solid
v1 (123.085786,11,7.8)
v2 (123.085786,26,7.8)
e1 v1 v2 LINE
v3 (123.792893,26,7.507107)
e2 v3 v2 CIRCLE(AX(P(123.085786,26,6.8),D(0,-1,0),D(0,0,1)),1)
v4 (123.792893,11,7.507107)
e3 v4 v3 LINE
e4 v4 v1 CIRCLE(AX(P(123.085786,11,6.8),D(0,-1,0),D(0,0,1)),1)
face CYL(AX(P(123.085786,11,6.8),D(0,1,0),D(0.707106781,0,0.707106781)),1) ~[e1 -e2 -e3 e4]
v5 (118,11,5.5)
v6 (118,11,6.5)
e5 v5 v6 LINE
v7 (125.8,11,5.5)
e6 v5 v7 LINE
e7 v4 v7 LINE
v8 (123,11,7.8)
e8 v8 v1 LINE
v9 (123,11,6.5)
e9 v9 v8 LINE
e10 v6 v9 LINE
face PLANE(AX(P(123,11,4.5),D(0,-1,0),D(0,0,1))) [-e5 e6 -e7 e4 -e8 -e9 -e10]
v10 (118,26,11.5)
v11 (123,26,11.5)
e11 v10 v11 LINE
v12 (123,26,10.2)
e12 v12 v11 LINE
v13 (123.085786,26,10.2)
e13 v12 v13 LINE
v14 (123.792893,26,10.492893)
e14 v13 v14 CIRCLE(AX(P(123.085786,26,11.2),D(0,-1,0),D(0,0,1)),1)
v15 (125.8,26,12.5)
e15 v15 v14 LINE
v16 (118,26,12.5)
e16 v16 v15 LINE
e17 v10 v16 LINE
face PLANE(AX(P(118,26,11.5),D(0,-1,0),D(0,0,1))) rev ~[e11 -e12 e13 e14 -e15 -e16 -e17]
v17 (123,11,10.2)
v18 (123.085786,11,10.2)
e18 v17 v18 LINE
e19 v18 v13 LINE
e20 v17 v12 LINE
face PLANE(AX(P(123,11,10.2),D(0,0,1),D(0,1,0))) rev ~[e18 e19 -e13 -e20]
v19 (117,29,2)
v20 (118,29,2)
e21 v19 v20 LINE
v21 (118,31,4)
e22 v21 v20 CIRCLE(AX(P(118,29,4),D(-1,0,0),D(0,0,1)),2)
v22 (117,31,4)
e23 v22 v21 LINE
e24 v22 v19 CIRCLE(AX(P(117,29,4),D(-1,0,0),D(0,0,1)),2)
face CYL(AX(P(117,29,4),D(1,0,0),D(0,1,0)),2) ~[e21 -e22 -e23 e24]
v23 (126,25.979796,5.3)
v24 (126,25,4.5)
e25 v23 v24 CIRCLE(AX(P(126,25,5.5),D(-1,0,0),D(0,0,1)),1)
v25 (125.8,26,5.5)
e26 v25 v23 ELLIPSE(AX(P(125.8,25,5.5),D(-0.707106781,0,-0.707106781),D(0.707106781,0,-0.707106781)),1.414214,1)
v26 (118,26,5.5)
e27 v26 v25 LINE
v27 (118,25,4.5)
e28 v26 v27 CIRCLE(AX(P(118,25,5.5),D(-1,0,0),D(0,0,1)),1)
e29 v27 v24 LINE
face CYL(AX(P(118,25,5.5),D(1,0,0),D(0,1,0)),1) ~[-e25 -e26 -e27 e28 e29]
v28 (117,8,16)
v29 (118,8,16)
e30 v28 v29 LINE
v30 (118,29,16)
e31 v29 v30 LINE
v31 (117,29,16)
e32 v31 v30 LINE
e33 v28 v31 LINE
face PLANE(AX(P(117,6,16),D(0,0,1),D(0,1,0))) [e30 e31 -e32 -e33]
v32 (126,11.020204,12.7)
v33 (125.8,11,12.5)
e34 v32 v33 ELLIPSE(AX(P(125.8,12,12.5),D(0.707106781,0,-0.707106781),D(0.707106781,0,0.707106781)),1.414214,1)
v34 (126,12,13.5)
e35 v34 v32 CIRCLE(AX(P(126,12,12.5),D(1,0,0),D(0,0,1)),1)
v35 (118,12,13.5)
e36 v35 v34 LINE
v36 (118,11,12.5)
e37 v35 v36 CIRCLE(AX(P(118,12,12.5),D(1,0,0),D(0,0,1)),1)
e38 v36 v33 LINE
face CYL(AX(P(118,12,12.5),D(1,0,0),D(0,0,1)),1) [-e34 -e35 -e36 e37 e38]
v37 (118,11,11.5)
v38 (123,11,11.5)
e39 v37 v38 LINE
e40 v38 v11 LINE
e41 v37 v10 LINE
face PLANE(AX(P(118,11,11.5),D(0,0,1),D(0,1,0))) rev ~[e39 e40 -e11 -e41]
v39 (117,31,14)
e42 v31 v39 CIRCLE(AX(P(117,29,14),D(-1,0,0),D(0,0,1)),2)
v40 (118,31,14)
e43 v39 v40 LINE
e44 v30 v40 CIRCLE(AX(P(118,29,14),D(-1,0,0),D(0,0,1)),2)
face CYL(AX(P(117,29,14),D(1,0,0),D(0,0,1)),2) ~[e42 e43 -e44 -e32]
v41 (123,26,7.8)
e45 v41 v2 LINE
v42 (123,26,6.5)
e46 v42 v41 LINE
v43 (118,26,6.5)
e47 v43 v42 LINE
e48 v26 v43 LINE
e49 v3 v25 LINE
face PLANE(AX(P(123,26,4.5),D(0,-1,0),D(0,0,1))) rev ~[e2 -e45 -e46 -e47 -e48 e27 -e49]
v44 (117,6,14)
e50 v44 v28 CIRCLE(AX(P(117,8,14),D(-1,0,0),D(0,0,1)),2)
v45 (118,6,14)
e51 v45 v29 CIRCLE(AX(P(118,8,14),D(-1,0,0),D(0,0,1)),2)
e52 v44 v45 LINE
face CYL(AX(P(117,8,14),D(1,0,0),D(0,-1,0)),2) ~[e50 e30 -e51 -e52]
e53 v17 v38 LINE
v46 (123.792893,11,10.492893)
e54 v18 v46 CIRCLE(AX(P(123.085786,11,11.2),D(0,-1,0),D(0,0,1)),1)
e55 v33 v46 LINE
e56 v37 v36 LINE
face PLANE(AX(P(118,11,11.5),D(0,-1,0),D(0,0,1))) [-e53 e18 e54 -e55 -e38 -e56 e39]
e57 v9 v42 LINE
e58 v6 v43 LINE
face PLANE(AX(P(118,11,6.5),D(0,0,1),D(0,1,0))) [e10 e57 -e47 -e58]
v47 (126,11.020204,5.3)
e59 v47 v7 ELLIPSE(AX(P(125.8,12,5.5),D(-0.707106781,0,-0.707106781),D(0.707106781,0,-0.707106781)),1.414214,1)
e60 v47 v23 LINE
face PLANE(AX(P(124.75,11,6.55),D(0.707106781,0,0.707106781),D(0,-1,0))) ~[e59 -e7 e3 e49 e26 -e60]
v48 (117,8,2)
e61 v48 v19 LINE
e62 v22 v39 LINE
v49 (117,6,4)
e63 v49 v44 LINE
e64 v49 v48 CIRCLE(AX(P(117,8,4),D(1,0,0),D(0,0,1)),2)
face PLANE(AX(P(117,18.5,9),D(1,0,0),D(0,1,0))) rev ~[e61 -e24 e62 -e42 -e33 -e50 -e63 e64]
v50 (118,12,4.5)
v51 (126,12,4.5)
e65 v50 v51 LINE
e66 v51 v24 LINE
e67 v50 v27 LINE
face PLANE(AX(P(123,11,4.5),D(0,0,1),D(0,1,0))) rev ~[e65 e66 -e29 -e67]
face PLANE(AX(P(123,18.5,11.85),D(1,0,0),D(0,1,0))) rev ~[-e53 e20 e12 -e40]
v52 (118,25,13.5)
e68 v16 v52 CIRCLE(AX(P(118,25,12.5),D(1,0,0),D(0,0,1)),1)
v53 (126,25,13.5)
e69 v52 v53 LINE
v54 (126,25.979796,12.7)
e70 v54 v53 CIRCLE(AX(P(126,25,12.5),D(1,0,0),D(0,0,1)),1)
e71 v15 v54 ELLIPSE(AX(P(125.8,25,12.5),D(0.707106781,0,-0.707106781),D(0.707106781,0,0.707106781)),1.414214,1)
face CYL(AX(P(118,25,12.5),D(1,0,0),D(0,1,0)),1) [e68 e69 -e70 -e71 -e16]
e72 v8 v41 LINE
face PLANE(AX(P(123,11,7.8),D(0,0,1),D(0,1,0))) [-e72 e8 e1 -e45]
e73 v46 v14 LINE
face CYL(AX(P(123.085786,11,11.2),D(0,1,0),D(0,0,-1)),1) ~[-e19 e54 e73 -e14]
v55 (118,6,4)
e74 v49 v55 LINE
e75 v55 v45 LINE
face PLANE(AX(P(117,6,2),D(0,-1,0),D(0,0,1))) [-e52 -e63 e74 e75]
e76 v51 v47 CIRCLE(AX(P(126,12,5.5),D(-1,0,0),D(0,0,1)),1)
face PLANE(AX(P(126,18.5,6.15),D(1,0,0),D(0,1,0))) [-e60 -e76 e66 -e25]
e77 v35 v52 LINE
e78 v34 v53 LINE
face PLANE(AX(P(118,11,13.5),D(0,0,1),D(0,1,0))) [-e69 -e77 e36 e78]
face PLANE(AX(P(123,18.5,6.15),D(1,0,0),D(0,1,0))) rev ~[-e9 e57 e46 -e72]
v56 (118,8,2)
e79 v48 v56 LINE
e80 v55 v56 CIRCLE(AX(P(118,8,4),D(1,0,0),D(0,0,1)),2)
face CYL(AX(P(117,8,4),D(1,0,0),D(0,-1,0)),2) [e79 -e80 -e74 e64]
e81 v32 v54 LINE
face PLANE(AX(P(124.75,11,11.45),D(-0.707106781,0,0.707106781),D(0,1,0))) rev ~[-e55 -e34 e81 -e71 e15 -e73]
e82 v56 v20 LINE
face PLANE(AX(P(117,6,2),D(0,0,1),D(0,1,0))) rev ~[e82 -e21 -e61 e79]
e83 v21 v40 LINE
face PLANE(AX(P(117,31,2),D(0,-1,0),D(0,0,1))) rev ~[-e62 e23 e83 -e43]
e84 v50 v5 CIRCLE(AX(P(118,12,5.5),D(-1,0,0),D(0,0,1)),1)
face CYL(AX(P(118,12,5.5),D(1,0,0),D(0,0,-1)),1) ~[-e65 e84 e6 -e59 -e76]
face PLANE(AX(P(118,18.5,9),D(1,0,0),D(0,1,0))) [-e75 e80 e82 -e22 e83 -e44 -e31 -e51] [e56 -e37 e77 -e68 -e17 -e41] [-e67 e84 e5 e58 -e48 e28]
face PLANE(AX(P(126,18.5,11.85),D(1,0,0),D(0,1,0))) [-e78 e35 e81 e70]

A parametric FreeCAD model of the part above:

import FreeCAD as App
import Part
import Sketcher
from FreeCAD import Vector
Q = App.Units.Quantity


def edges_at(feature, points):
    """Names of the edges that pass closest to the given points."""
    edges = feature.Shape.Edges
    near = lambda p: min(range(len(edges)), key=lambda i: edges[i].distToShape(Part.Vertex(*p))[0])
    return sorted({f"Edge{near(p) + 1}" for p in points})

doc = App.newDocument("Part")
body = doc.addObject("PartDesign::Body", "Body")

# Sketch on YZ plane
sketch1 = body.newObject("Sketcher::SketchObject", "Sketch")
sketch1.AttachmentSupport = (doc.getObject("YZ_Plane"), [""])
sketch1.MapMode = "FlatFace"
sketch1.addGeometry(Part.LineSegment(Vector(-25, 16, 0), Vector(-25, 2, 0)), False)
sketch1.addGeometry(Part.LineSegment(Vector(-25, 2, 0), Vector(0, 2, 0)), False)
sketch1.addGeometry(Part.LineSegment(Vector(0, 2, 0), Vector(0, 16, 0)), False)
sketch1.addGeometry(Part.LineSegment(Vector(0, 16, 0), Vector(-25, 16, 0)), False)
sketch1.addConstraint(Sketcher.Constraint("Coincident", 0, 2, 1, 1))
sketch1.addConstraint(Sketcher.Constraint("Coincident", 1, 2, 2, 1))
sketch1.addConstraint(Sketcher.Constraint("Coincident", 2, 2, 3, 1))
sketch1.addConstraint(Sketcher.Constraint("Coincident", 3, 2, 0, 1))
sketch1.addConstraint(Sketcher.Constraint("Vertical", 0))
sketch1.addConstraint(Sketcher.Constraint("Horizontal", 1))
sketch1.addConstraint(Sketcher.Constraint("Vertical", 2))
sketch1.addConstraint(Sketcher.Constraint("Horizontal", 3))
sketch1.addConstraint(Sketcher.Constraint("PointOnObject", 1, 2, -2))
sketch1.addConstraint(Sketcher.Constraint("DistanceX", 1, 1, 1, 2, Q("25 mm")))
sketch1.addConstraint(Sketcher.Constraint("DistanceY", 0, 2, 0, 1, Q("14 mm")))
sketch1.addConstraint(Sketcher.Constraint("DistanceY", -1, 1, 0, 2, Q("2 mm")))
pad1 = body.newObject("PartDesign::Pad", "Pad")
pad1.Profile = sketch1
pad1.Length = 1
doc.recompute()

fillet = body.newObject("PartDesign::Fillet", "Fillet")
fillet.Base = (pad1, edges_at(pad1, [(0.5, -25, 2)]))
fillet.Radius = 2
doc.recompute()

fillet2 = body.newObject("PartDesign::Fillet", "Fillet001")
fillet2.Base = (fillet, edges_at(fillet, [(0.5, -25, 16)]))
fillet2.Radius = 2
doc.recompute()

fillet3 = body.newObject("PartDesign::Fillet", "Fillet002")
fillet3.Base = (fillet2, edges_at(fillet2, [(0.5, 0, 16)]))
fillet3.Radius = 2
doc.recompute()

fillet4 = body.newObject("PartDesign::Fillet", "Fillet003")
fillet4.Base = (fillet3, edges_at(fillet3, [(0.5, 0, 2)]))
fillet4.Radius = 2

# Sketch on YZ plane
sketch2 = body.newObject("Sketcher::SketchObject", "Sketch001")
sketch2.AttachmentSupport = (doc.getObject("YZ_Plane"), [""])
sketch2.MapMode = "FlatFace"
sketch2.AttachmentOffset = App.Placement(Vector(0, 0, 1), App.Rotation())
sketch2.addGeometry(Part.LineSegment(Vector(-20, 13.5, 0), Vector(-20, 11.5, 0)), False)
sketch2.addGeometry(Part.LineSegment(Vector(-20, 11.5, 0), Vector(-5, 11.5, 0)), False)
sketch2.addGeometry(Part.LineSegment(Vector(-5, 11.5, 0), Vector(-5, 13.5, 0)), False)
sketch2.addGeometry(Part.LineSegment(Vector(-5, 13.5, 0), Vector(-20, 13.5, 0)), False)
sketch2.addGeometry(Part.LineSegment(Vector(-20, 6.5, 0), Vector(-20, 4.5, 0)), False)
sketch2.addGeometry(Part.LineSegment(Vector(-20, 4.5, 0), Vector(-5, 4.5, 0)), False)
sketch2.addGeometry(Part.LineSegment(Vector(-5, 4.5, 0), Vector(-5, 6.5, 0)), False)
sketch2.addGeometry(Part.LineSegment(Vector(-5, 6.5, 0), Vector(-20, 6.5, 0)), False)
sketch2.addConstraint(Sketcher.Constraint("Coincident", 0, 2, 1, 1))
sketch2.addConstraint(Sketcher.Constraint("Coincident", 1, 2, 2, 1))
sketch2.addConstraint(Sketcher.Constraint("Coincident", 2, 2, 3, 1))
sketch2.addConstraint(Sketcher.Constraint("Coincident", 3, 2, 0, 1))
sketch2.addConstraint(Sketcher.Constraint("Coincident", 4, 2, 5, 1))
sketch2.addConstraint(Sketcher.Constraint("Coincident", 5, 2, 6, 1))
sketch2.addConstraint(Sketcher.Constraint("Coincident", 6, 2, 7, 1))
sketch2.addConstraint(Sketcher.Constraint("Coincident", 7, 2, 4, 1))
sketch2.addConstraint(Sketcher.Constraint("Vertical", 0))
sketch2.addConstraint(Sketcher.Constraint("Horizontal", 1))
sketch2.addConstraint(Sketcher.Constraint("Vertical", 2))
sketch2.addConstraint(Sketcher.Constraint("Horizontal", 3))
sketch2.addConstraint(Sketcher.Constraint("Vertical", 4))
sketch2.addConstraint(Sketcher.Constraint("Horizontal", 5))
sketch2.addConstraint(Sketcher.Constraint("Vertical", 6))
sketch2.addConstraint(Sketcher.Constraint("Horizontal", 7))
sketch2.addConstraint(Sketcher.Constraint("Vertical", 3, 2, 4, 2))
sketch2.addConstraint(Sketcher.Constraint("Vertical", 2, 2, 5, 2))
sketch2.addConstraint(Sketcher.Constraint("Equal", 2, 4))
sketch2.addConstraint(Sketcher.Constraint("DistanceX", 1, 1, 1, 2, Q("15 mm")))
sketch2.addConstraint(Sketcher.Constraint("DistanceY", 0, 2, 0, 1, Q("2 mm")))
sketch2.addConstraint(Sketcher.Constraint("DistanceX", 0, 2, -1, 1, Q("20 mm")))
sketch2.addConstraint(Sketcher.Constraint("DistanceY", 4, 2, 0, 2, Q("7 mm")))
sketch2.addConstraint(Sketcher.Constraint("DistanceY", -1, 1, 0, 2, Q("11.5 mm")))
pad2 = body.newObject("PartDesign::Pad", "Pad001")
pad2.Profile = sketch2
pad2.Length = 5

# Sketch on YZ plane
sketch3 = body.newObject("Sketcher::SketchObject", "Sketch002")
sketch3.AttachmentSupport = (doc.getObject("YZ_Plane"), [""])
sketch3.MapMode = "FlatFace"
sketch3.AttachmentOffset = App.Placement(Vector(0, 0, 6), App.Rotation())
sketch3.addGeometry(Part.LineSegment(Vector(-20, 7.8, 0), Vector(-20, 4.5, 0)), False)
sketch3.addGeometry(Part.LineSegment(Vector(-20, 4.5, 0), Vector(-5, 4.5, 0)), False)
sketch3.addGeometry(Part.LineSegment(Vector(-5, 4.5, 0), Vector(-5, 7.8, 0)), False)
sketch3.addGeometry(Part.LineSegment(Vector(-5, 7.8, 0), Vector(-20, 7.8, 0)), False)
sketch3.addGeometry(Part.LineSegment(Vector(-20, 13.5, 0), Vector(-20, 10.2, 0)), False)
sketch3.addGeometry(Part.LineSegment(Vector(-20, 10.2, 0), Vector(-5, 10.2, 0)), False)
sketch3.addGeometry(Part.LineSegment(Vector(-5, 10.2, 0), Vector(-5, 13.5, 0)), False)
sketch3.addGeometry(Part.LineSegment(Vector(-5, 13.5, 0), Vector(-20, 13.5, 0)), False)
sketch3.addConstraint(Sketcher.Constraint("Coincident", 0, 2, 1, 1))
sketch3.addConstraint(Sketcher.Constraint("Coincident", 1, 2, 2, 1))
sketch3.addConstraint(Sketcher.Constraint("Coincident", 2, 2, 3, 1))
sketch3.addConstraint(Sketcher.Constraint("Coincident", 3, 2, 0, 1))
sketch3.addConstraint(Sketcher.Constraint("Coincident", 4, 2, 5, 1))
sketch3.addConstraint(Sketcher.Constraint("Coincident", 5, 2, 6, 1))
sketch3.addConstraint(Sketcher.Constraint("Coincident", 6, 2, 7, 1))
sketch3.addConstraint(Sketcher.Constraint("Coincident", 7, 2, 4, 1))
sketch3.addConstraint(Sketcher.Constraint("Vertical", 0))
sketch3.addConstraint(Sketcher.Constraint("Horizontal", 1))
sketch3.addConstraint(Sketcher.Constraint("Vertical", 2))
sketch3.addConstraint(Sketcher.Constraint("Horizontal", 3))
sketch3.addConstraint(Sketcher.Constraint("Vertical", 4))
sketch3.addConstraint(Sketcher.Constraint("Horizontal", 5))
sketch3.addConstraint(Sketcher.Constraint("Vertical", 6))
sketch3.addConstraint(Sketcher.Constraint("Horizontal", 7))
sketch3.addConstraint(Sketcher.Constraint("Vertical", 3, 2, 4, 2))
sketch3.addConstraint(Sketcher.Constraint("Vertical", 2, 2, 5, 2))
sketch3.addConstraint(Sketcher.Constraint("Equal", 2, 4))
sketch3.addConstraint(Sketcher.Constraint("DistanceX", 1, 1, 1, 2, Q("15 mm")))
sketch3.addConstraint(Sketcher.Constraint("DistanceY", 0, 2, 0, 1, Q("3.3 mm")))
sketch3.addConstraint(Sketcher.Constraint("DistanceX", 0, 2, -1, 1, Q("20 mm")))
sketch3.addConstraint(Sketcher.Constraint("DistanceY", 1, 2, 6, 2, Q("9 mm")))
sketch3.addConstraint(Sketcher.Constraint("DistanceY", -1, 1, 0, 2, Q("4.5 mm")))
pad3 = body.newObject("PartDesign::Pad", "Pad002")
pad3.Profile = sketch3
pad3.Length = 3
doc.recompute()

chamfer = body.newObject("PartDesign::Chamfer", "Chamfer")
chamfer.Base = (pad3, edges_at(pad3, [(9, -12.5, 7.8), (9, -12.5, 10.2)]))
chamfer.Size = 2.5
doc.recompute()

fillet5 = body.newObject("PartDesign::Fillet", "Fillet004")
fillet5.Base = (chamfer, edges_at(chamfer, [(6.5, -12.5, 10.2)]))
fillet5.Radius = 1
doc.recompute()

fillet6 = body.newObject("PartDesign::Fillet", "Fillet005")
fillet6.Base = (fillet5, edges_at(fillet5, [(6.5, -12.5, 7.8)]))
fillet6.Radius = 1
doc.recompute()

fillet7 = body.newObject("PartDesign::Fillet", "Fillet006")
fillet7.Base = (fillet6, edges_at(fillet6, [
    (5, -20, 4.5),
    (5, -20, 13.5),
    (5, -5, 13.5),
    (5, -5, 4.5),
]))
fillet7.Radius = 1
body2 = doc.addObject("PartDesign::Body", "Body001")
doc.recompute()

body.Placement = App.Placement(Vector(117, 31, 0), App.Rotation(Vector(0, 0, 1), 0))
boolean = body2.newObject("PartDesign::Boolean", "Boolean")
boolean.Type = "Fuse"
boolean.addObjects([body])

doc.recompute()
